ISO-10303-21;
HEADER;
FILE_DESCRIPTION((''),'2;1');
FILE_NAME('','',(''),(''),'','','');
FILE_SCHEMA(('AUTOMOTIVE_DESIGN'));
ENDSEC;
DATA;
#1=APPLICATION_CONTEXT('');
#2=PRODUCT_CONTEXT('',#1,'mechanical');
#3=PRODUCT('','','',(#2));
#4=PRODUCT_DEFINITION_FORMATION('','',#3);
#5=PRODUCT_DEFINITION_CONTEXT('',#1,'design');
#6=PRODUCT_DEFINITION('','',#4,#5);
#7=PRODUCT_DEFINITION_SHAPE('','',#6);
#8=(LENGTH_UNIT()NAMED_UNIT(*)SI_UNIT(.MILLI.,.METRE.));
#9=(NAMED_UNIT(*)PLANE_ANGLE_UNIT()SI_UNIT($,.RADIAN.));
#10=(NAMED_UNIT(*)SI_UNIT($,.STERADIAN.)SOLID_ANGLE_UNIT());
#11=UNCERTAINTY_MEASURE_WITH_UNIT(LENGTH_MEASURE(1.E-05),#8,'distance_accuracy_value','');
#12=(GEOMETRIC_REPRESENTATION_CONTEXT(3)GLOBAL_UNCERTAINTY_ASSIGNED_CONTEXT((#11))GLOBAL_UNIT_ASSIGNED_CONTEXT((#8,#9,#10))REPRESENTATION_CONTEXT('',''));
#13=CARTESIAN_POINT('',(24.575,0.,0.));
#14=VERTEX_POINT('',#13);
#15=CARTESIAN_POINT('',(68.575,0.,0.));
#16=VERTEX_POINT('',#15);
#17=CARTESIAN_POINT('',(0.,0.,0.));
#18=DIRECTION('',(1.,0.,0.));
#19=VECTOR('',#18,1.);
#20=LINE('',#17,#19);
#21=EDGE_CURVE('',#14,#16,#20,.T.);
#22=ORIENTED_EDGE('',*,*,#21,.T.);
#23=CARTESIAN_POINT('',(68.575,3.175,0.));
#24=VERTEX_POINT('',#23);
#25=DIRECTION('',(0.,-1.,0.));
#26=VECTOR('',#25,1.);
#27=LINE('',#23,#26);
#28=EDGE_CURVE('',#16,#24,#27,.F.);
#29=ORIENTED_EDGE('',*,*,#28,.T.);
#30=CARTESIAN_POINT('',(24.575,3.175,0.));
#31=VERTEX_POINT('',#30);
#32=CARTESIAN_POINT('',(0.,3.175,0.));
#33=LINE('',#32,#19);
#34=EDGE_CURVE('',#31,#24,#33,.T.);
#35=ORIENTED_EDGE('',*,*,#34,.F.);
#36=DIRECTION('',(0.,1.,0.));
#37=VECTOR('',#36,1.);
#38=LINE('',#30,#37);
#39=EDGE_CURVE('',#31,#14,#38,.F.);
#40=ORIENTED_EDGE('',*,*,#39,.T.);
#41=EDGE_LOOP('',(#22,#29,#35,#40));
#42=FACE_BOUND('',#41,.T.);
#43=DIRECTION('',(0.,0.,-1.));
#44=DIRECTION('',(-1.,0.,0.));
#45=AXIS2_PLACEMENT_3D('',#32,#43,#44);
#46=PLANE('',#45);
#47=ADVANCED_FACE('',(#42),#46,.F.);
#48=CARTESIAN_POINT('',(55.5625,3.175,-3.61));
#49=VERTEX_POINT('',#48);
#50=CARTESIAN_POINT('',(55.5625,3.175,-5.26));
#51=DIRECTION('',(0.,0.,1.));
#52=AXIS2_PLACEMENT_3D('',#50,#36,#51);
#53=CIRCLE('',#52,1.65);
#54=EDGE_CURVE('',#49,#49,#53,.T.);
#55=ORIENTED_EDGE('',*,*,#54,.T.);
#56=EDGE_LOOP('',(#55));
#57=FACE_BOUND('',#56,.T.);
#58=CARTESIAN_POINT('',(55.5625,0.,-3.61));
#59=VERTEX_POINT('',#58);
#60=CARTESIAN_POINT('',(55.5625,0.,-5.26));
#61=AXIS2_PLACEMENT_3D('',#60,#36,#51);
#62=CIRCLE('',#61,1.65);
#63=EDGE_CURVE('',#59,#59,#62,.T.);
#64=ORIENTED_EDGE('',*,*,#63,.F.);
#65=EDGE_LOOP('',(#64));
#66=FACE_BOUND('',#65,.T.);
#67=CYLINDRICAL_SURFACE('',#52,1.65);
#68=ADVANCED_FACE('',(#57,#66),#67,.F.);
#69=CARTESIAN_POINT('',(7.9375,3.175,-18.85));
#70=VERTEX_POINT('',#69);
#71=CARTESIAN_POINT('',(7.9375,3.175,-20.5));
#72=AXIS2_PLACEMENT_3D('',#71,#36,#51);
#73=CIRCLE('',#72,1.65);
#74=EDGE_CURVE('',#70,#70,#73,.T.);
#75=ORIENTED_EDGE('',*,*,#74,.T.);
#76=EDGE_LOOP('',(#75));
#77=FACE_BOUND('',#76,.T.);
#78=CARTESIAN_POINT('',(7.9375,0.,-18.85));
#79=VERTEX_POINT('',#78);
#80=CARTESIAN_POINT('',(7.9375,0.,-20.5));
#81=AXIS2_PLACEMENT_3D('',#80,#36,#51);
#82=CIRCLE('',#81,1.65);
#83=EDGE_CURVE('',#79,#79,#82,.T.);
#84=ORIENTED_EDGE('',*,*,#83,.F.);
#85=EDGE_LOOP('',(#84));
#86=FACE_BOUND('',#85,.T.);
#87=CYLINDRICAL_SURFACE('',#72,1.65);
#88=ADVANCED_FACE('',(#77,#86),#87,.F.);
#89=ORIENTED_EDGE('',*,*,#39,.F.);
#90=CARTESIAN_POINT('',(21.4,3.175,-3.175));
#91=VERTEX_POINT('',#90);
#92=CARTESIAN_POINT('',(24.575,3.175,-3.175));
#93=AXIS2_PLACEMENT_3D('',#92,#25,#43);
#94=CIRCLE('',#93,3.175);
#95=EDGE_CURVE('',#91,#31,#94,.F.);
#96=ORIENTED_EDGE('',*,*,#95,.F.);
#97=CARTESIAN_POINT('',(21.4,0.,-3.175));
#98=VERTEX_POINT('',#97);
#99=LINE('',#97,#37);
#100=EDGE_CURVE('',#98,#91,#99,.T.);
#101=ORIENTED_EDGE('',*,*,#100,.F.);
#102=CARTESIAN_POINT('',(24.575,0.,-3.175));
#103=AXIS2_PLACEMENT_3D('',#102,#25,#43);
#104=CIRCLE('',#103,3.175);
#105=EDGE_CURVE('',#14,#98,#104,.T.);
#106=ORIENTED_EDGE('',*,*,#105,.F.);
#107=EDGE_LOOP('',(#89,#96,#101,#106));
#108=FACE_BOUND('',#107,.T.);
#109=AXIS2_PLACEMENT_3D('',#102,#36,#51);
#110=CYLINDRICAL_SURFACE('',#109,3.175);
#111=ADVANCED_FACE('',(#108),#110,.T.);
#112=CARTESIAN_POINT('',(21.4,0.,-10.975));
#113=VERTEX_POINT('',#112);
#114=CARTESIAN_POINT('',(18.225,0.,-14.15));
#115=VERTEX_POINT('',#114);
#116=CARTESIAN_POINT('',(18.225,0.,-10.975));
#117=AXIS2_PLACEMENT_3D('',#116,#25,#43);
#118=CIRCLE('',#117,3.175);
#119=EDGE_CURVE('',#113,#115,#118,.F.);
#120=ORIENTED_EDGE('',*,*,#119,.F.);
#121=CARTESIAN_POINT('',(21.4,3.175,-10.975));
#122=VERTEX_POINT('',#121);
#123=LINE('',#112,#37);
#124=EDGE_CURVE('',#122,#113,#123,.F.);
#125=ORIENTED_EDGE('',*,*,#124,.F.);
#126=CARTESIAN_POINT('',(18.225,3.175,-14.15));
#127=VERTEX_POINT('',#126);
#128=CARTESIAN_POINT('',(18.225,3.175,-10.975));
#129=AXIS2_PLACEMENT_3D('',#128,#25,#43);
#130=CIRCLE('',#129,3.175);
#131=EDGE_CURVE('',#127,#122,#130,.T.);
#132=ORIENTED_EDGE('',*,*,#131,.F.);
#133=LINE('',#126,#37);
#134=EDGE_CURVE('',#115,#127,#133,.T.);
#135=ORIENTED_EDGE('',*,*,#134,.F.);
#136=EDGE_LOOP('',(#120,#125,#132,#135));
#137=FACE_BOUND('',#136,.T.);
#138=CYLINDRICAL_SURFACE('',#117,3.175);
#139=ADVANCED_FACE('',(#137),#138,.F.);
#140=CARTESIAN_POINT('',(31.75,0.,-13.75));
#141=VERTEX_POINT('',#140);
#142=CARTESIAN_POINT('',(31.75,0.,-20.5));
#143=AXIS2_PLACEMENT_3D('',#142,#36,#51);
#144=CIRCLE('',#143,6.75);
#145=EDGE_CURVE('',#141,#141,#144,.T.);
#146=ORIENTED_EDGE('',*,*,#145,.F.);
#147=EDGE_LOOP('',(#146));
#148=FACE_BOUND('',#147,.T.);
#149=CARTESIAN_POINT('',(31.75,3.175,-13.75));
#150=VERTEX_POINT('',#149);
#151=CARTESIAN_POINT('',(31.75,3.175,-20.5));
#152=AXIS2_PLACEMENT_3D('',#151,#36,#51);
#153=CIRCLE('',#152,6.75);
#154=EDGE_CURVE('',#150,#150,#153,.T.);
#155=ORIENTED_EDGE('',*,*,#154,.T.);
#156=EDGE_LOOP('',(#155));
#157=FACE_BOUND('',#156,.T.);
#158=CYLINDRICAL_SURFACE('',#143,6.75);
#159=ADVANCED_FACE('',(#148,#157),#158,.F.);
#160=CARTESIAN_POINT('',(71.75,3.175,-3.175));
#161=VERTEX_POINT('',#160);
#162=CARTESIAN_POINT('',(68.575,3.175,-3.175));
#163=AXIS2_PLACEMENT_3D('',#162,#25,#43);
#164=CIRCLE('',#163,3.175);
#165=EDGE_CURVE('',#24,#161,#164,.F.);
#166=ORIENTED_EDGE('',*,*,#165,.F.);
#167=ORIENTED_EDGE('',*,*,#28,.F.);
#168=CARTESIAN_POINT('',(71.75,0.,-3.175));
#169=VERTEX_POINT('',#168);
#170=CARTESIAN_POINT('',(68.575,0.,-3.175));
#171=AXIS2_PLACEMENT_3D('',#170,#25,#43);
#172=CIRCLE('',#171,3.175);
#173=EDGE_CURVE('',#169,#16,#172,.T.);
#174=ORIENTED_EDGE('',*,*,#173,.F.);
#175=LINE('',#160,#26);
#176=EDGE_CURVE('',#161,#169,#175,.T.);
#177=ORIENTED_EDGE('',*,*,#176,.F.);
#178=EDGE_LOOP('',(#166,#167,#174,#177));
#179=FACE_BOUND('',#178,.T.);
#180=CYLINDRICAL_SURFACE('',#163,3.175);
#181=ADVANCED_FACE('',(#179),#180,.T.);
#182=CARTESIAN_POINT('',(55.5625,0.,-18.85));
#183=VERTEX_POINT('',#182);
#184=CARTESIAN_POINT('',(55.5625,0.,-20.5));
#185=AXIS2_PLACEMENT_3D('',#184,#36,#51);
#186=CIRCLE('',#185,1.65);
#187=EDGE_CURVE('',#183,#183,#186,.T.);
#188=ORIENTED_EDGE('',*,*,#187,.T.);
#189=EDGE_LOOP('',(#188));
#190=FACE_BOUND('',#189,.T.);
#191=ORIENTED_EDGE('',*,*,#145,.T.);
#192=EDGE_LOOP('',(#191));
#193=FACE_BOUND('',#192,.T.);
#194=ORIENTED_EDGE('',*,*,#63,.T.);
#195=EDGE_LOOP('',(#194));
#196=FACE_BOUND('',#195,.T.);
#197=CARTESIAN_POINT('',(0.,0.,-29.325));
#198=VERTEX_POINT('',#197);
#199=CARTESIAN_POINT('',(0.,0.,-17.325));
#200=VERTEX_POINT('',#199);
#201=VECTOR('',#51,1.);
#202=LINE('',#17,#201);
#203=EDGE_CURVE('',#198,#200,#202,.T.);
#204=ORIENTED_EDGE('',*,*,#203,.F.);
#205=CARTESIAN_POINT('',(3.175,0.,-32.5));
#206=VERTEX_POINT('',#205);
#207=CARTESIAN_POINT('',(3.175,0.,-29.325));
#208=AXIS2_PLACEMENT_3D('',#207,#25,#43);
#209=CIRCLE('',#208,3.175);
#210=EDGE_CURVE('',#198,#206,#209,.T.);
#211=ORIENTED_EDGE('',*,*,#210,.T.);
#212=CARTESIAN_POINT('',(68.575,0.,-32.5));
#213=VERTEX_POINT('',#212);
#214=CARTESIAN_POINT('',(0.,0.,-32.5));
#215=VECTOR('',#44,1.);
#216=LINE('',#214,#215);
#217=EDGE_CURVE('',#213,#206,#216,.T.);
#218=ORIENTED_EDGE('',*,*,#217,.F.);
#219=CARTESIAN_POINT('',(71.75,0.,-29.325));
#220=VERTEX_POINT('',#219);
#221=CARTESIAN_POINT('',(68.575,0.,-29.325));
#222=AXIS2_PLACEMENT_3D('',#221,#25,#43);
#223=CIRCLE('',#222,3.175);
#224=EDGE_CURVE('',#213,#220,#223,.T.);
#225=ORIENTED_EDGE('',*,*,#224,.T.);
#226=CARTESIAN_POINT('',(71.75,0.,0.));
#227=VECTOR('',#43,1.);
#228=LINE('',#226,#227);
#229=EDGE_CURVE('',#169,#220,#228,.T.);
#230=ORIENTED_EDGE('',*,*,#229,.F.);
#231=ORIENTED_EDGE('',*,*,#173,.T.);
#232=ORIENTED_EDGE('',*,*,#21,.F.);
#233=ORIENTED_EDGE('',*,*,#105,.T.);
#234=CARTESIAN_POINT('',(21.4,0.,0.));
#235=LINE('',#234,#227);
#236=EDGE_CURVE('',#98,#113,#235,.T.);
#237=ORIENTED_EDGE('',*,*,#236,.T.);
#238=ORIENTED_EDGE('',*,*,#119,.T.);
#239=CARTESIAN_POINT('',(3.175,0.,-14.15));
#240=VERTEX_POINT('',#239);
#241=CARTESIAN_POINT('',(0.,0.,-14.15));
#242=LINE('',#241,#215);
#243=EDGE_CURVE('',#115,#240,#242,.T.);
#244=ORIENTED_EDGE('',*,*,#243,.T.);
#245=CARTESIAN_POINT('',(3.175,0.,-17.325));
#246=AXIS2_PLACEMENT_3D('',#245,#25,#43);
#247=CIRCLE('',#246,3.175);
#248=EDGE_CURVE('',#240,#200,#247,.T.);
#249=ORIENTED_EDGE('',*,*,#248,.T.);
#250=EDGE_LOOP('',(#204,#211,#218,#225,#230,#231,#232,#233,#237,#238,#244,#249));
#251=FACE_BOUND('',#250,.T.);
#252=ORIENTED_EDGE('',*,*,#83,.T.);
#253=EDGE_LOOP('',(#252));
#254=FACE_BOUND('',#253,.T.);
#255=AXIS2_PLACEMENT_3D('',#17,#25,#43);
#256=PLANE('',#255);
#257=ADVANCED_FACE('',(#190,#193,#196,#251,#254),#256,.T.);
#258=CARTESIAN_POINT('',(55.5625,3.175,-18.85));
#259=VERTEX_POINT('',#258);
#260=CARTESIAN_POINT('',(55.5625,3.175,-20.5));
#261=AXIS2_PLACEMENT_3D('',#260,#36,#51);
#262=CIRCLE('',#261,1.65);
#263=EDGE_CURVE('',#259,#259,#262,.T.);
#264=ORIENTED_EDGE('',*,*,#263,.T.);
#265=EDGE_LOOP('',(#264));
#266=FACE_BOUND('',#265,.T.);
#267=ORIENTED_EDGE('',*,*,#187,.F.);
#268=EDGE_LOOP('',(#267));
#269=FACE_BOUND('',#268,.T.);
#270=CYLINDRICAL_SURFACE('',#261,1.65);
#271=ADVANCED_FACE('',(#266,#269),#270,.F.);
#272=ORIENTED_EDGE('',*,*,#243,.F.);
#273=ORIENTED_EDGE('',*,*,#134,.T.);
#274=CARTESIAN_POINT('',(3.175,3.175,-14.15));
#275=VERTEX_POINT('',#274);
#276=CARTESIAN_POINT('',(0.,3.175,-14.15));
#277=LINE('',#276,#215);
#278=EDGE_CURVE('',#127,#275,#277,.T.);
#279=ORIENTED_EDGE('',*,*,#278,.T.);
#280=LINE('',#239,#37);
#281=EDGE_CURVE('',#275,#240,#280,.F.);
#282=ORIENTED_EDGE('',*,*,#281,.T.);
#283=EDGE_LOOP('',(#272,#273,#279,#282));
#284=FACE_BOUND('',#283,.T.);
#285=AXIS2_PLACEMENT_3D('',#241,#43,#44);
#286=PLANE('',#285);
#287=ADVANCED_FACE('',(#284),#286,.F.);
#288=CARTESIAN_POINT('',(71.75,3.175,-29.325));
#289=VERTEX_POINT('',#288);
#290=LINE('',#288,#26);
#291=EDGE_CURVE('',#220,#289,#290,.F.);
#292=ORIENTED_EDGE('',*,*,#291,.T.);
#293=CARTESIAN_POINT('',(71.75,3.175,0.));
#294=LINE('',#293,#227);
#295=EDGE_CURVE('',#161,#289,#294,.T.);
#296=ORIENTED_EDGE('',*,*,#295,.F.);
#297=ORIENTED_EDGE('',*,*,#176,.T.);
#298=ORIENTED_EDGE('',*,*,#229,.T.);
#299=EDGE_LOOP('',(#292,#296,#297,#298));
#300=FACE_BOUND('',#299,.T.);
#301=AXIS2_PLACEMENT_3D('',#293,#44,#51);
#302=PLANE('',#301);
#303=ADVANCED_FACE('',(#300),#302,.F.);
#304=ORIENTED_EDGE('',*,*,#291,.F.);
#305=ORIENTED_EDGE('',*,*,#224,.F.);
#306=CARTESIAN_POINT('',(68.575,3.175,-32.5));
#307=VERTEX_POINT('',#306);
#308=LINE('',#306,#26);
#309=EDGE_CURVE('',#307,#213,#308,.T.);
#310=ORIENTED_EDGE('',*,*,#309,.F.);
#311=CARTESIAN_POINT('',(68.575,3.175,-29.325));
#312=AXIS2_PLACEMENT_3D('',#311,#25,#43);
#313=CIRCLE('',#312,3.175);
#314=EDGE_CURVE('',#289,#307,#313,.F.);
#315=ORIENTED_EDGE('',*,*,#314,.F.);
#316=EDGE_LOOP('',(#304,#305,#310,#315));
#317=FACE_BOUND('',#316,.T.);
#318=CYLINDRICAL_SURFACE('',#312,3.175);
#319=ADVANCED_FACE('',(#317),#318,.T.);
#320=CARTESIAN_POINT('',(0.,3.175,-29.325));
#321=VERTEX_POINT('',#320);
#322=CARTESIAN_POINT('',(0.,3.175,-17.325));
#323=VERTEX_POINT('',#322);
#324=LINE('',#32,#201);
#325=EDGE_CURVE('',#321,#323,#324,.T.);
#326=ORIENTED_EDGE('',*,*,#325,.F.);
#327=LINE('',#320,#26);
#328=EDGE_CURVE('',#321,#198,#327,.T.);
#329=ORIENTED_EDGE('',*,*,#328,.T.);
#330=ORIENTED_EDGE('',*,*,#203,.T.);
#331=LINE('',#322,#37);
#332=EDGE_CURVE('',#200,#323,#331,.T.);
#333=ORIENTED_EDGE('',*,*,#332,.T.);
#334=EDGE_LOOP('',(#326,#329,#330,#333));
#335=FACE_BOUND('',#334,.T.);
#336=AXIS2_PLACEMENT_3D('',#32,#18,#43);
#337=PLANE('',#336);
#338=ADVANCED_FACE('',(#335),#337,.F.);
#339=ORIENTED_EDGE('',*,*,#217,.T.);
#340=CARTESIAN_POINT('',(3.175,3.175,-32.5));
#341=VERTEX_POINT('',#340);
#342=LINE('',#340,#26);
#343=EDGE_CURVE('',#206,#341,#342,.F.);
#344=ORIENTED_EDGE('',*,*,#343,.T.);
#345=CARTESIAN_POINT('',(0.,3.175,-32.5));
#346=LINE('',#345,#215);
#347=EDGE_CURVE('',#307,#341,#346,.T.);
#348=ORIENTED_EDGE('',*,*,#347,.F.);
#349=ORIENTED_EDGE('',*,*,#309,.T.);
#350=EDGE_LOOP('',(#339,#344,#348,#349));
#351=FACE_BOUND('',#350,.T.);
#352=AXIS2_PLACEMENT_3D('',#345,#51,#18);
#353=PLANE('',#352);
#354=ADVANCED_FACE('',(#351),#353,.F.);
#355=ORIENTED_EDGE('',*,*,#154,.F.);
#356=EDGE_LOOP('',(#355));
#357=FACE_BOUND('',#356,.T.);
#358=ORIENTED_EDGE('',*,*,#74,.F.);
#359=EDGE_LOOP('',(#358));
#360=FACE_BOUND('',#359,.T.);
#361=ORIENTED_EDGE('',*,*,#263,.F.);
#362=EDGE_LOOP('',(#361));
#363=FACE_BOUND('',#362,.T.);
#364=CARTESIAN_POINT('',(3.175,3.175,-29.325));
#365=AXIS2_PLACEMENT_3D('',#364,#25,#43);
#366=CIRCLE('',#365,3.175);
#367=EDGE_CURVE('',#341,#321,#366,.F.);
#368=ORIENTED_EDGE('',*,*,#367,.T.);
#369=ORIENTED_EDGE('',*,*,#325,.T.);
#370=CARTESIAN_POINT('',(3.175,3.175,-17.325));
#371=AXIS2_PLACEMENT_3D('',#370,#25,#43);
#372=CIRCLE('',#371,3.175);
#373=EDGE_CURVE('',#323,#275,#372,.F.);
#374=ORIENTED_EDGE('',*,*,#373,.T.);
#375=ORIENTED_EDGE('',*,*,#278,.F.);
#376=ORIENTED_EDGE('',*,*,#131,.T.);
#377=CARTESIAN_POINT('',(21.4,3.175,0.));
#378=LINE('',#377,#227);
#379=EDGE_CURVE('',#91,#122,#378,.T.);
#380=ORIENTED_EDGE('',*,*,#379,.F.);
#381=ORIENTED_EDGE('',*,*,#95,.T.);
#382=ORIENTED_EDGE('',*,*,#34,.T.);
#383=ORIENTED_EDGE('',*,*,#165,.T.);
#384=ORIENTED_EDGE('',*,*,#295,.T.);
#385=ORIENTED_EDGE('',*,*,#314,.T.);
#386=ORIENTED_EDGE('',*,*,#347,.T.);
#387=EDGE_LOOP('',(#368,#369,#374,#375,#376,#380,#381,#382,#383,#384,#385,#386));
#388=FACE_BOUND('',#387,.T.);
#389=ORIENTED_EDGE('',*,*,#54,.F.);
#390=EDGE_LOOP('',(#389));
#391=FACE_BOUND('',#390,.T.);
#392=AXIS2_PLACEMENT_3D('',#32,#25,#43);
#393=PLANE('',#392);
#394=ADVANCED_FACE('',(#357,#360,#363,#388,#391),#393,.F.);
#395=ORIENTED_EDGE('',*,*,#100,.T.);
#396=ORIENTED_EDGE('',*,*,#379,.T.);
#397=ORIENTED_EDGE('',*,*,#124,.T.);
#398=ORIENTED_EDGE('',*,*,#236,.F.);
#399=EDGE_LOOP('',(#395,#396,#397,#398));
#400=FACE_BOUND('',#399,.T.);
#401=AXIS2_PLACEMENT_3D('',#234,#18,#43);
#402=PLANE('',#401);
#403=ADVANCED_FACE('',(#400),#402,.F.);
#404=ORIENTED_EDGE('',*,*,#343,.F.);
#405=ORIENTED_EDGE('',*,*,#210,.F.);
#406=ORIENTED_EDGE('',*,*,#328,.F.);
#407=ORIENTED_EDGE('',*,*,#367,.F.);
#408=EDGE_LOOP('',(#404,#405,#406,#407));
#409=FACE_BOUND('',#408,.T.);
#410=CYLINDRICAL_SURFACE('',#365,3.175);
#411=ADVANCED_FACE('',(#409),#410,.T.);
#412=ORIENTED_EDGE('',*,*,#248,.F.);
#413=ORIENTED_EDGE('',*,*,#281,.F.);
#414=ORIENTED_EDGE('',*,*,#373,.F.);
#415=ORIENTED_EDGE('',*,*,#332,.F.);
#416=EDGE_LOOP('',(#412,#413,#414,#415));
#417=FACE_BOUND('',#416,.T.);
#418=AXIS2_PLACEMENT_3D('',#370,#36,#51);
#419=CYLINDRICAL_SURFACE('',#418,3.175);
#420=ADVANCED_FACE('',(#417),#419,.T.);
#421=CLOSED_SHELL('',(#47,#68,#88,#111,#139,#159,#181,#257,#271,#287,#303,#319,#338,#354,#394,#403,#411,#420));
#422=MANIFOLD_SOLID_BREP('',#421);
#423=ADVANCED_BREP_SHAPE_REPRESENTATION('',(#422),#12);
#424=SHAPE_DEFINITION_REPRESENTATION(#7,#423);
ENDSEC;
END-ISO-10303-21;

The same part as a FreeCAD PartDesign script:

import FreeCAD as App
import Part
import Sketcher
Q = App.Units.Quantity


def edges_at(feature, points):
    """Names of the edges that pass closest to the given points."""
    edges = feature.Shape.Edges
    near = lambda p: min(range(len(edges)), key=lambda i: edges[i].distToShape(Part.Vertex(*p))[0])
    return sorted({f"Edge{near(p) + 1}" for p in points})

doc = App.newDocument("Part")
body = doc.addObject("PartDesign::Body", "Body")

# Sketch on XZ plane
sketch1 = body.newObject("Sketcher::SketchObject", "Sketch")
sketch1.AttachmentSupport = (doc.getObject("XZ_Plane"), [""])
sketch1.MapMode = "FlatFace"
sketch1.addGeometry([
    Part.LineSegment(App.Vector(0, -32, 0), App.Vector(0, 0, 0)),
    Part.LineSegment(App.Vector(0, 0, 0), App.Vector(72, 0, 0)),
    Part.LineSegment(App.Vector(72, 0, 0), App.Vector(72, -32, 0)),
    Part.LineSegment(App.Vector(72, -32, 0), App.Vector(0, -32, 0)),
], False)
sketch1.addConstraint([
    Sketcher.Constraint("Coincident", 0, 2, 1, 1),
    Sketcher.Constraint("Coincident", 1, 2, 2, 1),
    Sketcher.Constraint("Coincident", 2, 2, 3, 1),
    Sketcher.Constraint("Coincident", 3, 2, 0, 1),
    Sketcher.Constraint("Vertical", 0),
    Sketcher.Constraint("Horizontal", 1),
    Sketcher.Constraint("Vertical", 2),
    Sketcher.Constraint("Horizontal", 3),
    Sketcher.Constraint("Coincident", 0, 2, -1, 1),
    Sketcher.Constraint("DistanceY", 0, 1, 0, 2, Q("32.5 mm")),
    Sketcher.Constraint("DistanceX", 1, 1, 1, 2, Q("71.75 mm")),
])
pad1 = body.newObject("PartDesign::Pad", "Pad")
pad1.Profile = sketch1
pad1.Length = 3.175
pad1.Reversed = True

# Sketch on XZ plane
sketch2 = body.newObject("Sketcher::SketchObject", "Sketch001")
sketch2.AttachmentSupport = (doc.getObject("XZ_Plane"), [""])
sketch2.MapMode = "FlatFace"
sketch2.AttachmentOffset = App.Placement(App.Vector(0, 0, -3.175), App.Rotation())
sketch2.addGeometry([
    Part.Circle(App.Vector(7.9, -20.5, 0), App.Vector(0, 0, 1), 1.6),
    Part.Circle(App.Vector(55.6, -20.5, 0), App.Vector(0, 0, 1), 1.6),
    Part.Circle(App.Vector(55.6, -5.3, 0), App.Vector(0, 0, 1), 1.6),
], False)
sketch2.addConstraint([
    Sketcher.Constraint("Equal", 0, 1),
    Sketcher.Constraint("Equal", 1, 2),
    Sketcher.Constraint("Horizontal", 0, 3, 1, 3),
    Sketcher.Constraint("Vertical", 1, 3, 2, 3),
    Sketcher.Constraint("Diameter", 0, Q("3.3 mm")),
    Sketcher.Constraint("DistanceY", 0, 3, -1, 1, Q("20.5 mm")),
    Sketcher.Constraint("DistanceY", 2, 3, -1, 1, Q("5.26 mm")),
    Sketcher.Constraint("DistanceX", 0, 3, 1, 3, Q("47.625 mm")),
    Sketcher.Constraint("DistanceX", -1, 1, 0, 3, Q("7.9375 mm")),
])
doc.recompute()
hole = body.newObject("PartDesign::Hole", "Hole")
hole.Profile = sketch2
hole.ThreadType = "None"
hole.Diameter = 3.3
hole.DepthType = "ThroughAll"
hole.Reversed = True

# Sketch on XZ plane
sketch3 = body.newObject("Sketcher::SketchObject", "Sketch002")
sketch3.AttachmentSupport = (doc.getObject("XZ_Plane"), [""])
sketch3.MapMode = "FlatFace"
sketch3.AttachmentOffset = App.Placement(App.Vector(0, 0, -3.175), App.Rotation())
sketch3.addGeometry(Part.Circle(App.Vector(32, -20, 0), App.Vector(0, 0, 1), 7), False)
sketch3.addConstraint([
    Sketcher.Constraint("Diameter", 0, Q("13.5 mm")),
    Sketcher.Constraint("DistanceY", 0, 3, -1, 1, Q("20.5 mm")),
    Sketcher.Constraint("DistanceX", -1, 1, 0, 3, Q("31.75 mm")),
])
pocket1 = body.newObject("PartDesign::Pocket", "Pocket")
pocket1.Profile = sketch3
pocket1.Type = "ThroughAll"
pocket1.Reversed = True

# Sketch on XZ plane
sketch4 = body.newObject("Sketcher::SketchObject", "Sketch003")
sketch4.AttachmentSupport = (doc.getObject("XZ_Plane"), [""])
sketch4.MapMode = "FlatFace"
sketch4.AttachmentOffset = App.Placement(App.Vector(0, 0, -3.175), App.Rotation())
sketch4.addGeometry([
    Part.LineSegment(App.Vector(0, -14, 0), App.Vector(0, 0, 0)),
    Part.LineSegment(App.Vector(0, 0, 0), App.Vector(21, 0, 0)),
    Part.LineSegment(App.Vector(21, 0, 0), App.Vector(21, -14, 0)),
    Part.LineSegment(App.Vector(21, -14, 0), App.Vector(0, -14, 0)),
], False)
sketch4.addConstraint([
    Sketcher.Constraint("Coincident", 0, 2, 1, 1),
    Sketcher.Constraint("Coincident", 1, 2, 2, 1),
    Sketcher.Constraint("Coincident", 2, 2, 3, 1),
    Sketcher.Constraint("Coincident", 3, 2, 0, 1),
    Sketcher.Constraint("Vertical", 0),
    Sketcher.Constraint("Horizontal", 1),
    Sketcher.Constraint("Vertical", 2),
    Sketcher.Constraint("Horizontal", 3),
    Sketcher.Constraint("Coincident", 0, 2, -1, 1),
    Sketcher.Constraint("DistanceX", 1, 1, 1, 2, Q("21.4 mm")),
    Sketcher.Constraint("DistanceY", 0, 1, 0, 2, Q("14.15 mm")),
])
pocket2 = body.newObject("PartDesign::Pocket", "Pocket001")
pocket2.Profile = sketch4
pocket2.Type = "ThroughAll"
pocket2.Reversed = True
doc.recompute()

fillet = body.newObject("PartDesign::Fillet", "Fillet")
fillet.Base = (pocket2, edges_at(pocket2, [
    (0, 1.587, -14.15),
    (21.4, 1.587, -14.15),
    (21.4, 1.587, 0),
    (0, 1.587, -32.5),
    (71.75, 1.587, -32.5),
    (71.75, 1.587, 0),
]))
fillet.Radius = 3.175

doc.recompute()
